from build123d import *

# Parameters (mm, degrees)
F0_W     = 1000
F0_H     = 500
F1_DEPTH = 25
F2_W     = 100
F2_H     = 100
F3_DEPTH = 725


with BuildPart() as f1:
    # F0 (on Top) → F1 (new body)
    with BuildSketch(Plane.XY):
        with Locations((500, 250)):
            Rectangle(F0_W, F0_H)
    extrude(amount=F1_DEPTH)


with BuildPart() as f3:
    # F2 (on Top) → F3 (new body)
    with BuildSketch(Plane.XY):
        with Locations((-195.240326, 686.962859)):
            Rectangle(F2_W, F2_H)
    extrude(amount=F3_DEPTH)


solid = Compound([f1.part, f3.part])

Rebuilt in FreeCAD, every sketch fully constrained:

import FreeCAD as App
import Part
import Sketcher
Q = App.Units.Quantity


def add_polygon(sketch, points):
    """Adds a closed chain of lines whose ends are joined by coincident constraints."""
    first, n = sketch.GeometryCount, len(points)
    for a, b in zip(points, points[1:] + points[:1]):
        sketch.addGeometry(Part.LineSegment(App.Vector(*a, 0), App.Vector(*b, 0)), False)
    for i in range(n):
        sketch.addConstraint(Sketcher.Constraint("Coincident", first + i, 2, first + (i + 1) % n, 1))

doc = App.newDocument("Part")
params = doc.addObject("Spreadsheet::Sheet", "Params")
for row, (alias, value) in enumerate([
    ("sketch1_width", "1000 mm"),
    ("sketch1_height", "500 mm"),
    ("pad1_length", "25 mm"),
    ("sketch2_width", "100 mm"),
    ("pad2_length", "725 mm"),
], start=1):
    params.set(f"A{row}", alias)
    params.set(f"B{row}", "=" + value)
    params.setAlias(f"B{row}", alias)

body = doc.addObject("PartDesign::Body", "Body")

# Sketch on XY plane
sketch1 = doc.addObject("Sketcher::SketchObject", "Sketch")
body.addObject(sketch1)
sketch1.AttachmentSupport = (doc.XY_Plane, [""])
sketch1.MapMode = "FlatFace"
add_polygon(sketch1, [(0, 500), (0, 0), (1000, 0), (1000, 500)])  # lines 0-3
sketch1.addConstraint(Sketcher.Constraint("Vertical", 0))
sketch1.addConstraint(Sketcher.Constraint("Horizontal", 1))
sketch1.addConstraint(Sketcher.Constraint("Vertical", 2))
sketch1.addConstraint(Sketcher.Constraint("Horizontal", 3))
sketch1.addConstraint(Sketcher.Constraint("Coincident", 0, 2, -1, 1))
sketch1.addConstraint(Sketcher.Constraint("DistanceX", 1, 1, 1, 2, Q("1000 mm")))
sketch1.addConstraint(Sketcher.Constraint("DistanceY", 0, 2, 0, 1, Q("500 mm")))
sketch1.setExpression("Constraints[9]", "Params.sketch1_width")
sketch1.setExpression("Constraints[10]", "Params.sketch1_height")
pad1 = doc.addObject("PartDesign::Pad", "Pad")
body.addObject(pad1)
pad1.Profile = sketch1
pad1.setExpression("Length", "Params.pad1_length")
body2 = doc.addObject("PartDesign::Body", "Body001")

# Sketch on XY plane
sketch2 = doc.addObject("Sketcher::SketchObject", "Sketch001")
body2.addObject(sketch2)
sketch2.AttachmentSupport = (doc.getObject("XY_Plane001"), [""])
sketch2.MapMode = "FlatFace"
add_polygon(sketch2, [(-245, 737), (-245, 637), (-145, 637), (-145, 737)])  # lines 0-3
sketch2.addConstraint(Sketcher.Constraint("Vertical", 0))
sketch2.addConstraint(Sketcher.Constraint("Horizontal", 1))
sketch2.addConstraint(Sketcher.Constraint("Vertical", 2))
sketch2.addConstraint(Sketcher.Constraint("Horizontal", 3))
sketch2.addConstraint(Sketcher.Constraint("Equal", 3, 0))
sketch2.addConstraint(Sketcher.Constraint("DistanceX", 1, 1, 1, 2, Q("100 mm")))
sketch2.addConstraint(Sketcher.Constraint("DistanceY", -1, 1, 0, 2, Q("636.962859 mm")))
sketch2.addConstraint(Sketcher.Constraint("DistanceX", 0, 2, -1, 1, Q("245.240326 mm")))
sketch2.setExpression("Constraints[9]", "Params.sketch2_width")
pad2 = doc.addObject("PartDesign::Pad", "Pad001")
body2.addObject(pad2)
pad2.Profile = sketch2
pad2.setExpression("Length", "Params.pad2_length")

doc.recompute()
